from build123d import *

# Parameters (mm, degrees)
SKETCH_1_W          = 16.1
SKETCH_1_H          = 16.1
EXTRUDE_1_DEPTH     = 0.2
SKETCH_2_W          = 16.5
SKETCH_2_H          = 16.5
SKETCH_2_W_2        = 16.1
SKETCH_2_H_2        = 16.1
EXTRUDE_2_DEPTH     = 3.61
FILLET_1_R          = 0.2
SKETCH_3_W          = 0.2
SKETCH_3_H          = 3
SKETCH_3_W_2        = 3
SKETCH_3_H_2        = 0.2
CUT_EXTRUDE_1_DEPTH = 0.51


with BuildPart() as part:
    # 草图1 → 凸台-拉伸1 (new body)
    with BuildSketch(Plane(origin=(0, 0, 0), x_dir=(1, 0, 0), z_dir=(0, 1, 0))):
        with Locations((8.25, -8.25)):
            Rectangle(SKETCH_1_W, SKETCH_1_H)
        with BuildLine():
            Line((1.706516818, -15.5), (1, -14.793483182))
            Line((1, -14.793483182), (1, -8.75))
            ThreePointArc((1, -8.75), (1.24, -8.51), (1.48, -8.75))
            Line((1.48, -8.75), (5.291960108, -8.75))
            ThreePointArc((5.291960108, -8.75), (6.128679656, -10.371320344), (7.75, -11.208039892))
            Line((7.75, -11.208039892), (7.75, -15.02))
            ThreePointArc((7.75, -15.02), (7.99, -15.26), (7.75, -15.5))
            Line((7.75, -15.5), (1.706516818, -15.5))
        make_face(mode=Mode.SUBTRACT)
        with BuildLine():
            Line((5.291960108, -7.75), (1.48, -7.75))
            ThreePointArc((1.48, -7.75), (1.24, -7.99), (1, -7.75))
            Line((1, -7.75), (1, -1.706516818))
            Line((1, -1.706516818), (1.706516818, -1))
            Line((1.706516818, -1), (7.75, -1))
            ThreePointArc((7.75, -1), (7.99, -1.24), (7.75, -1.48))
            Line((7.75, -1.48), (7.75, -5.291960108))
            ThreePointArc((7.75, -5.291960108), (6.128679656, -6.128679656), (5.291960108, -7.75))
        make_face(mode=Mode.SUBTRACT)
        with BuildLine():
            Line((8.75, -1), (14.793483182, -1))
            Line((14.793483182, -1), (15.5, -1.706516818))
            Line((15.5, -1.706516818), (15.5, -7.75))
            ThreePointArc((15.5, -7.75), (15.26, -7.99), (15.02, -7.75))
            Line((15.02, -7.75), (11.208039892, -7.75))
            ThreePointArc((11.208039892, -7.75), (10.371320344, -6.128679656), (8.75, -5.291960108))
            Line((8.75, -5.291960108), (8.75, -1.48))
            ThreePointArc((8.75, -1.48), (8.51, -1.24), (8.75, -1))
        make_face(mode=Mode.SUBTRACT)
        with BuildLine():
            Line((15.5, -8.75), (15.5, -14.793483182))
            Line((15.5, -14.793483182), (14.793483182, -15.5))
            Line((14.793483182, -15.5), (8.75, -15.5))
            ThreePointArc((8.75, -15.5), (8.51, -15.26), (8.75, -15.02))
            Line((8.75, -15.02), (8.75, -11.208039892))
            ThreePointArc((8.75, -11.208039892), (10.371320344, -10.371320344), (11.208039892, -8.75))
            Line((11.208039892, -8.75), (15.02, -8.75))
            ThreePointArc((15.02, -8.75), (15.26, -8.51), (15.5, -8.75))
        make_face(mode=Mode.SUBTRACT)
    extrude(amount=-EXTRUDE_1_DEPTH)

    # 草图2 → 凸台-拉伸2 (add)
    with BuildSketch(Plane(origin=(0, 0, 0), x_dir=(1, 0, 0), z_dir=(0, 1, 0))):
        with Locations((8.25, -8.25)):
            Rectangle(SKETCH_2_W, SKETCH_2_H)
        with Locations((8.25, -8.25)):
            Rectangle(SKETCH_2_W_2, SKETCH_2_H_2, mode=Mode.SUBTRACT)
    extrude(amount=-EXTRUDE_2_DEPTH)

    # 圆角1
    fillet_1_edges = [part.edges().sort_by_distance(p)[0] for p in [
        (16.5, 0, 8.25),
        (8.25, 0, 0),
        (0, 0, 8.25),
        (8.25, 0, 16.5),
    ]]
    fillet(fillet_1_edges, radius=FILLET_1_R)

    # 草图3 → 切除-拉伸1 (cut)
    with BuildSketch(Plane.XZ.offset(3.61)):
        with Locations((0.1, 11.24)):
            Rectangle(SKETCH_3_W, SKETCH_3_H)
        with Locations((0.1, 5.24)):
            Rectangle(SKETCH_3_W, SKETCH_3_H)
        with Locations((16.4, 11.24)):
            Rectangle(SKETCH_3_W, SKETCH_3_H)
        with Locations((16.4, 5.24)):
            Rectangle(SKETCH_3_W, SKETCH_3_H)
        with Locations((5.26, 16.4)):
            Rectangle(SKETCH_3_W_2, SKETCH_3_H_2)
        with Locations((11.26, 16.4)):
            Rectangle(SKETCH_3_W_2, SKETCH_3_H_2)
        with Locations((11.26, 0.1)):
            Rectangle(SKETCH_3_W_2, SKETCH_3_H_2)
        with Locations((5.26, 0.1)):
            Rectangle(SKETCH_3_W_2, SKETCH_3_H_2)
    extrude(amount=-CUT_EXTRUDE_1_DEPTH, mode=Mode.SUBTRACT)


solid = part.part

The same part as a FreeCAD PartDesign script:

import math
import FreeCAD as App
import Part
import Sketcher
from FreeCAD import Vector


def edges_at(feature, points):
    """Names of the edges that pass closest to the given points."""
    edges = feature.Shape.Edges
    near = lambda p: min(range(len(edges)), key=lambda i: edges[i].distToShape(Part.Vertex(*p))[0])
    return sorted({f"Edge{near(p) + 1}" for p in points})


def add_polygon(sketch, points):
    """Adds a closed chain of lines whose ends are joined by coincident constraints."""
    first, n = sketch.GeometryCount, len(points)
    for a, b in zip(points, points[1:] + points[:1]):
        sketch.addGeometry(Part.LineSegment(App.Vector(*a, 0), App.Vector(*b, 0)), False)
    for i in range(n):
        sketch.addConstraint(Sketcher.Constraint("Coincident", first + i, 2, first + (i + 1) % n, 1))

doc = App.newDocument("Part")
body = doc.addObject("PartDesign::Body", "Body")

sketch1 = body.newObject("Sketcher::SketchObject", "Sketch")
sketch1.AttachmentSupport = (doc.getObject("XZ_Plane"), [""])
sketch1.MapMode = "FlatFace"
add_polygon(sketch1, [(0.2, 0.2), (0.2, 16.3), (16.3, 16.3), (16.3, 0.2)])
sketch1.addGeometry(Part.LineSegment(Vector(7.75, 15.5, 0), Vector(1.71, 15.5, 0)), False)
sketch1.addGeometry(Part.LineSegment(Vector(1.71, 15.5, 0), Vector(1, 14.79, 0)), False)
sketch1.addGeometry(Part.LineSegment(Vector(1, 14.79, 0), Vector(1, 8.75, 0)), False)
sketch1.addGeometry(Part.ArcOfCircle(Part.Circle(Vector(1.24, 8.75, 0), Vector(0, 0, 1), 0.24), math.radians(180), math.radians(360)), False)
sketch1.addGeometry(Part.LineSegment(Vector(1.48, 8.75, 0), Vector(5.29, 8.75, 0)), False)
sketch1.addGeometry(Part.ArcOfCircle(Part.Circle(Vector(8.25, 8.25, 0), Vector(0, 0, 1), 3), math.radians(100), math.radians(170)), False)
sketch1.addGeometry(Part.LineSegment(Vector(7.75, 11.21, 0), Vector(7.75, 15.02, 0)), False)
sketch1.addGeometry(Part.ArcOfCircle(Part.Circle(Vector(7.75, 15.26, 0), Vector(0, 0, 1), 0.24), math.radians(-90), math.radians(90)), False)
sketch1.addGeometry(Part.ArcOfCircle(Part.Circle(Vector(15.26, 8.75, 0), Vector(0, 0, 1), 0.24), math.radians(180), math.radians(360)), False)
sketch1.addGeometry(Part.LineSegment(Vector(15.5, 8.75, 0), Vector(15.5, 14.79, 0)), False)
sketch1.addGeometry(Part.LineSegment(Vector(15.5, 14.79, 0), Vector(14.79, 15.5, 0)), False)
sketch1.addGeometry(Part.LineSegment(Vector(14.79, 15.5, 0), Vector(8.75, 15.5, 0)), False)
sketch1.addGeometry(Part.ArcOfCircle(Part.Circle(Vector(8.75, 15.26, 0), Vector(0, 0, 1), 0.24), math.radians(90), math.radians(270)), False)
sketch1.addGeometry(Part.LineSegment(Vector(8.75, 15.02, 0), Vector(8.75, 11.21, 0)), False)
sketch1.addGeometry(Part.ArcOfCircle(Part.Circle(Vector(8.25, 8.25, 0), Vector(0, 0, 1), 3), math.radians(10), math.radians(80)), False)
sketch1.addGeometry(Part.LineSegment(Vector(11.21, 8.75, 0), Vector(15.02, 8.75, 0)), False)
sketch1.addGeometry(Part.ArcOfCircle(Part.Circle(Vector(8.25, 8.25, 0), Vector(0, 0, 1), 3), math.radians(-170), math.radians(-100)), False)
sketch1.addGeometry(Part.LineSegment(Vector(5.29, 7.75, 0), Vector(1.48, 7.75, 0)), False)
sketch1.addGeometry(Part.ArcOfCircle(Part.Circle(Vector(1.24, 7.75, 0), Vector(0, 0, 1), 0.24), math.radians(0), math.radians(180)), False)
sketch1.addGeometry(Part.LineSegment(Vector(1, 7.75, 0), Vector(1, 1.71, 0)), False)
sketch1.addGeometry(Part.LineSegment(Vector(1, 1.71, 0), Vector(1.71, 1, 0)), False)
sketch1.addGeometry(Part.LineSegment(Vector(1.71, 1, 0), Vector(7.75, 1, 0)), False)
sketch1.addGeometry(Part.ArcOfCircle(Part.Circle(Vector(7.75, 1.24, 0), Vector(0, 0, 1), 0.24), math.radians(-90), math.radians(90)), False)
sketch1.addGeometry(Part.LineSegment(Vector(7.75, 1.48, 0), Vector(7.75, 5.29, 0)), False)
sketch1.addGeometry(Part.ArcOfCircle(Part.Circle(Vector(8.75, 1.24, 0), Vector(0, 0, 1), 0.24), math.radians(90), math.radians(270)), False)
sketch1.addGeometry(Part.LineSegment(Vector(8.75, 1, 0), Vector(14.79, 1, 0)), False)
sketch1.addGeometry(Part.LineSegment(Vector(14.79, 1, 0), Vector(15.5, 1.71, 0)), False)
sketch1.addGeometry(Part.LineSegment(Vector(15.5, 1.71, 0), Vector(15.5, 7.75, 0)), False)
sketch1.addGeometry(Part.ArcOfCircle(Part.Circle(Vector(15.26, 7.75, 0), Vector(0, 0, 1), 0.24), math.radians(0), math.radians(180)), False)
sketch1.addGeometry(Part.LineSegment(Vector(15.02, 7.75, 0), Vector(11.21, 7.75, 0)), False)
sketch1.addGeometry(Part.ArcOfCircle(Part.Circle(Vector(8.25, 8.25, 0), Vector(0, 0, 1), 3), math.radians(-80), math.radians(-10)), False)
sketch1.addGeometry(Part.LineSegment(Vector(8.75, 5.29, 0), Vector(8.75, 1.48, 0)), False)
sketch1.addConstraint(Sketcher.Constraint("Coincident", 4, 2, 5, 1))
sketch1.addConstraint(Sketcher.Constraint("Coincident", 5, 2, 6, 1))
sketch1.addConstraint(Sketcher.Constraint("Tangent", 6, 2, 7, 1))
sketch1.addConstraint(Sketcher.Constraint("Coincident", 7, 2, 8, 1))
sketch1.addConstraint(Sketcher.Constraint("Coincident", 8, 2, 9, 2))
sketch1.addConstraint(Sketcher.Constraint("Coincident", 9, 1, 10, 1))
sketch1.addConstraint(Sketcher.Constraint("Coincident", 10, 2, 11, 1))
sketch1.addConstraint(Sketcher.Constraint("Tangent", 11, 2, 4, 1))
sketch1.addConstraint(Sketcher.Constraint("Tangent", 12, 2, 13, 1))
sketch1.addConstraint(Sketcher.Constraint("Coincident", 13, 2, 14, 1))
sketch1.addConstraint(Sketcher.Constraint("Coincident", 14, 2, 15, 1))
sketch1.addConstraint(Sketcher.Constraint("Tangent", 15, 2, 16, 1))
sketch1.addConstraint(Sketcher.Constraint("Coincident", 16, 2, 17, 1))
sketch1.addConstraint(Sketcher.Constraint("Coincident", 17, 2, 18, 2))
sketch1.addConstraint(Sketcher.Constraint("Coincident", 18, 1, 19, 1))
sketch1.addConstraint(Sketcher.Constraint("Coincident", 19, 2, 12, 1))
sketch1.addConstraint(Sketcher.Constraint("Coincident", 20, 1, 21, 1))
sketch1.addConstraint(Sketcher.Constraint("Coincident", 21, 2, 22, 1))
sketch1.addConstraint(Sketcher.Constraint("Tangent", 22, 2, 23, 1))
sketch1.addConstraint(Sketcher.Constraint("Coincident", 23, 2, 24, 1))
sketch1.addConstraint(Sketcher.Constraint("Coincident", 24, 2, 25, 1))
sketch1.addConstraint(Sketcher.Constraint("Tangent", 25, 2, 26, 1))
sketch1.addConstraint(Sketcher.Constraint("Coincident", 26, 2, 27, 1))
sketch1.addConstraint(Sketcher.Constraint("Coincident", 27, 2, 20, 2))
sketch1.addConstraint(Sketcher.Constraint("Tangent", 28, 2, 29, 1))
sketch1.addConstraint(Sketcher.Constraint("Coincident", 29, 2, 30, 1))
sketch1.addConstraint(Sketcher.Constraint("Coincident", 30, 2, 31, 1))
sketch1.addConstraint(Sketcher.Constraint("Tangent", 31, 2, 32, 1))
sketch1.addConstraint(Sketcher.Constraint("Coincident", 32, 2, 33, 1))
sketch1.addConstraint(Sketcher.Constraint("Coincident", 33, 2, 34, 2))
sketch1.addConstraint(Sketcher.Constraint("Coincident", 34, 1, 35, 1))
sketch1.addConstraint(Sketcher.Constraint("Coincident", 35, 2, 28, 1))
sketch1.addConstraint(Sketcher.Constraint("Vertical", 0))
sketch1.addConstraint(Sketcher.Constraint("Horizontal", 1))
sketch1.addConstraint(Sketcher.Constraint("Vertical", 2))
sketch1.addConstraint(Sketcher.Constraint("Horizontal", 3))
sketch1.addConstraint(Sketcher.Constraint("Horizontal", 4))
sketch1.addConstraint(Sketcher.Constraint("Vertical", 6))
sketch1.addConstraint(Sketcher.Constraint("Horizontal", 8))
sketch1.addConstraint(Sketcher.Constraint("Vertical", 10))
sketch1.addConstraint(Sketcher.Constraint("Vertical", 13))
sketch1.addConstraint(Sketcher.Constraint("Horizontal", 15))
sketch1.addConstraint(Sketcher.Constraint("Vertical", 17))
sketch1.addConstraint(Sketcher.Constraint("Horizontal", 19))
sketch1.addConstraint(Sketcher.Constraint("Horizontal", 21))
sketch1.addConstraint(Sketcher.Constraint("Vertical", 23))
sketch1.addConstraint(Sketcher.Constraint("Horizontal", 25))
sketch1.addConstraint(Sketcher.Constraint("Vertical", 27))
sketch1.addConstraint(Sketcher.Constraint("Horizontal", 29))
sketch1.addConstraint(Sketcher.Constraint("Vertical", 31))
sketch1.addConstraint(Sketcher.Constraint("Horizontal", 33))
sketch1.addConstraint(Sketcher.Constraint("Vertical", 35))
sketch1.addConstraint(Sketcher.Constraint("Coincident", 18, 3, 9, 3))
sketch1.addConstraint(Sketcher.Constraint("Coincident", 20, 3, 9, 3))
sketch1.addConstraint(Sketcher.Constraint("Coincident", 34, 3, 9, 3))
sketch1.addConstraint(Sketcher.Constraint("Equal", 7, 11))
sketch1.addConstraint(Sketcher.Constraint("Equal", 11, 12))
sketch1.addConstraint(Sketcher.Constraint("Equal", 12, 16))
sketch1.addConstraint(Sketcher.Constraint("Equal", 9, 18))
sketch1.addConstraint(Sketcher.Constraint("Equal", 18, 20))
sketch1.addConstraint(Sketcher.Constraint("Equal", 16, 22))
sketch1.addConstraint(Sketcher.Constraint("Equal", 22, 26))
sketch1.addConstraint(Sketcher.Constraint("Equal", 26, 28))
sketch1.addConstraint(Sketcher.Constraint("Equal", 28, 32))
sketch1.addConstraint(Sketcher.Constraint("Equal", 20, 34))
sketch1.addConstraint(Sketcher.Constraint("Perpendicular", 5, 14))
sketch1.addConstraint(Sketcher.Constraint("Parallel", 14, 24))
sketch1.addConstraint(Sketcher.Constraint("Perpendicular", 24, 30))
sketch1.addConstraint(Sketcher.Constraint("Horizontal", 7, 3, 12, 3))
sketch1.addConstraint(Sketcher.Constraint("Horizontal", 11, 3, 16, 3))
sketch1.addConstraint(Sketcher.Constraint("Horizontal", 26, 3, 28, 3))
sketch1.addConstraint(Sketcher.Constraint("Horizontal", 22, 3, 32, 3))
sketch1.addConstraint(Sketcher.Constraint("Horizontal", 6, 2, 7, 2))
sketch1.addConstraint(Sketcher.Constraint("Horizontal", 5, 2, 13, 2))
sketch1.addConstraint(Sketcher.Constraint("Horizontal", 9, 1, 17, 2))
sketch1.addConstraint(Sketcher.Constraint("Horizontal", 12, 2, 18, 1))
sketch1.addConstraint(Sketcher.Constraint("Horizontal", 32, 3, 20, 1))
sketch1.addConstraint(Sketcher.Constraint("Horizontal", 23, 2, 30, 2))
sketch1.addConstraint(Sketcher.Constraint("Horizontal", 31, 2, 32, 2))
sketch1.addConstraint(Sketcher.Constraint("Horizontal", 27, 2, 34, 1))
sketch1.addConstraint(Sketcher.Constraint("Vertical", 7, 3, 22, 3))
sketch1.addConstraint(Sketcher.Constraint("Vertical", 11, 3, 26, 3))
sketch1.addConstraint(Sketcher.Constraint("Vertical", 16, 3, 28, 3))
sketch1.addConstraint(Sketcher.Constraint("Vertical", 12, 3, 32, 3))
sketch1.addConstraint(Sketcher.Constraint("Vertical", 26, 3, 9, 1))
sketch1.addConstraint(Sketcher.Constraint("Vertical", 15, 2, 16, 2))
sketch1.addConstraint(Sketcher.Constraint("Vertical", 8, 2, 20, 1))
sketch1.addConstraint(Sketcher.Constraint("Vertical", 4, 2, 24, 2))
sketch1.addConstraint(Sketcher.Constraint("Vertical", 25, 2, 26, 2))
sketch1.addConstraint(Sketcher.Constraint("Vertical", 14, 2, 29, 2))
sketch1.addConstraint(Sketcher.Constraint("Equal", 4, 15))
sketch1.addConstraint(Sketcher.Constraint("Equal", 3, 0))
sketch1.addConstraint(Sketcher.Constraint("Equal", 29, 6))
sketch1.addConstraint(Sketcher.Constraint("Equal", 33, 10))
sketch1.addConstraint(Sketcher.Constraint("Equal", 13, 23))
sketch1.addConstraint(Sketcher.Constraint("Radius", 9, 3.0))
sketch1.addConstraint(Sketcher.Constraint("Radius", 7, 0.24))
sketch1.addConstraint(Sketcher.Constraint("DistanceX", 1, 1, 1, 2, 16.1))
sketch1.addConstraint(Sketcher.Constraint("DistanceX", -1, 1, 5, 2, 1.0))
sketch1.addConstraint(Sketcher.Constraint("DistanceY", -1, 1, 24, 2, 1.0))
sketch1.addConstraint(Sketcher.Constraint("DistanceX", 11, 3, 16, 3, 1.0))
sketch1.addConstraint(Sketcher.Constraint("DistanceX", -1, 1, 0, 2, 0.2))
sketch1.addConstraint(Sketcher.Constraint("DistanceY", -1, 1, 0, 2, 16.3))
sketch1.addConstraint(Sketcher.Constraint("DistanceY", -1, 1, 4, 2, 15.5))
sketch1.addConstraint(Sketcher.Constraint("DistanceX", 4, 2, 4, 1, 6.043483))
pad1 = body.newObject("PartDesign::Pad", "Pad")
pad1.Profile = sketch1
pad1.Length = 0.2

sketch2 = body.newObject("Sketcher::SketchObject", "Sketch001")
sketch2.AttachmentSupport = (doc.getObject("XZ_Plane"), [""])
sketch2.MapMode = "FlatFace"
add_polygon(sketch2, [(0, 0), (0, 16), (16, 16), (16, 0)])
add_polygon(sketch2, [(16, 16), (0, 16), (0, 0), (16, 0)])
sketch2.addConstraint(Sketcher.Constraint("Vertical", 0))
sketch2.addConstraint(Sketcher.Constraint("Horizontal", 1))
sketch2.addConstraint(Sketcher.Constraint("Vertical", 2))
sketch2.addConstraint(Sketcher.Constraint("Horizontal", 3))
sketch2.addConstraint(Sketcher.Constraint("Horizontal", 4))
sketch2.addConstraint(Sketcher.Constraint("Vertical", 5))
sketch2.addConstraint(Sketcher.Constraint("Horizontal", 6))
sketch2.addConstraint(Sketcher.Constraint("Vertical", 7))
sketch2.addConstraint(Sketcher.Constraint("Coincident", 3, 2, -1, 1))
sketch2.addConstraint(Sketcher.Constraint("Equal", 3, 0))
sketch2.addConstraint(Sketcher.Constraint("Equal", 6, 5))
sketch2.addConstraint(Sketcher.Constraint("DistanceX", 1, 1, 1, 2, 16.5))
sketch2.addConstraint(Sketcher.Constraint("DistanceX", 4, 2, 4, 1, 16.1))
sketch2.addConstraint(Sketcher.Constraint("DistanceX", -1, 1, 4, 2, 0.2))
sketch2.addConstraint(Sketcher.Constraint("DistanceY", -1, 1, 4, 2, 16.3))
pad2 = body.newObject("PartDesign::Pad", "Pad001")
pad2.Profile = sketch2
pad2.Length = 3.61
doc.recompute()

fillet = body.newObject("PartDesign::Fillet", "Fillet")
fillet.Base = (pad2, edges_at(pad2, [
    (16.5, 0, 8.25),
    (8.25, 0, 0),
    (0, 0, 8.25),
    (8.25, 0, 16.5),
]))
fillet.Radius = 0.2

sketch3 = body.newObject("Sketcher::SketchObject", "Sketch002")
sketch3.AttachmentSupport = (doc.getObject("XZ_Plane"), [""])
sketch3.MapMode = "FlatFace"
sketch3.AttachmentOffset = App.Placement(Vector(0, 0, 3.61), App.Rotation())
add_polygon(sketch3, [(0, 12.74), (0, 9.74), (0.2, 9.74), (0.2, 12.74)])
add_polygon(sketch3, [(0, 6.74), (0, 3.74), (0.2, 3.74), (0.2, 6.74)])
add_polygon(sketch3, [(16.3, 12.74), (16.3, 9.74), (16.5, 9.74), (16.5, 12.74)])
add_polygon(sketch3, [(16.3, 6.74), (16.3, 3.74), (16.5, 3.74), (16.5, 6.74)])
add_polygon(sketch3, [(3.76, 16.5), (3.76, 16.3), (6.76, 16.3), (6.76, 16.5)])
add_polygon(sketch3, [(9.76, 16.5), (9.76, 16.3), (12.76, 16.3), (12.76, 16.5)])
add_polygon(sketch3, [(9.76, 0.2), (9.76, 0), (12.76, 0), (12.76, 0.2)])
add_polygon(sketch3, [(3.76, 0.2), (3.76, 0), (6.76, 0), (6.76, 0.2)])
sketch3.addConstraint(Sketcher.Constraint("Vertical", 0))
sketch3.addConstraint(Sketcher.Constraint("Horizontal", 1))
sketch3.addConstraint(Sketcher.Constraint("Vertical", 2))
sketch3.addConstraint(Sketcher.Constraint("Horizontal", 3))
sketch3.addConstraint(Sketcher.Constraint("Vertical", 4))
sketch3.addConstraint(Sketcher.Constraint("Horizontal", 5))
sketch3.addConstraint(Sketcher.Constraint("Vertical", 6))
sketch3.addConstraint(Sketcher.Constraint("Horizontal", 7))
sketch3.addConstraint(Sketcher.Constraint("Vertical", 8))
sketch3.addConstraint(Sketcher.Constraint("Horizontal", 9))
sketch3.addConstraint(Sketcher.Constraint("Vertical", 10))
sketch3.addConstraint(Sketcher.Constraint("Horizontal", 11))
sketch3.addConstraint(Sketcher.Constraint("Vertical", 12))
sketch3.addConstraint(Sketcher.Constraint("Horizontal", 13))
sketch3.addConstraint(Sketcher.Constraint("Vertical", 14))
sketch3.addConstraint(Sketcher.Constraint("Horizontal", 15))
sketch3.addConstraint(Sketcher.Constraint("Vertical", 16))
sketch3.addConstraint(Sketcher.Constraint("Horizontal", 17))
sketch3.addConstraint(Sketcher.Constraint("Vertical", 18))
sketch3.addConstraint(Sketcher.Constraint("Horizontal", 19))
sketch3.addConstraint(Sketcher.Constraint("Vertical", 20))
sketch3.addConstraint(Sketcher.Constraint("Horizontal", 21))
sketch3.addConstraint(Sketcher.Constraint("Vertical", 22))
sketch3.addConstraint(Sketcher.Constraint("Horizontal", 23))
sketch3.addConstraint(Sketcher.Constraint("Vertical", 24))
sketch3.addConstraint(Sketcher.Constraint("Horizontal", 25))
sketch3.addConstraint(Sketcher.Constraint("Vertical", 26))
sketch3.addConstraint(Sketcher.Constraint("Horizontal", 27))
sketch3.addConstraint(Sketcher.Constraint("Vertical", 28))
sketch3.addConstraint(Sketcher.Constraint("Horizontal", 29))
sketch3.addConstraint(Sketcher.Constraint("Vertical", 30))
sketch3.addConstraint(Sketcher.Constraint("Horizontal", 31))
sketch3.addConstraint(Sketcher.Constraint("PointOnObject", 0, 2, -2))
sketch3.addConstraint(Sketcher.Constraint("PointOnObject", 4, 2, -2))
sketch3.addConstraint(Sketcher.Constraint("PointOnObject", 24, 2, -1))
sketch3.addConstraint(Sketcher.Constraint("PointOnObject", 28, 2, -1))
sketch3.addConstraint(Sketcher.Constraint("Horizontal", 1, 2, 8, 2))
sketch3.addConstraint(Sketcher.Constraint("Horizontal", 3, 2, 10, 2))
sketch3.addConstraint(Sketcher.Constraint("Horizontal", 5, 2, 12, 2))
sketch3.addConstraint(Sketcher.Constraint("Horizontal", 7, 2, 14, 2))
sketch3.addConstraint(Sketcher.Constraint("Horizontal", 17, 2, 20, 2))
sketch3.addConstraint(Sketcher.Constraint("Horizontal", 19, 2, 22, 2))
sketch3.addConstraint(Sketcher.Constraint("Horizontal", 27, 2, 30, 2))
sketch3.addConstraint(Sketcher.Constraint("Vertical", 2, 2, 5, 2))
sketch3.addConstraint(Sketcher.Constraint("Vertical", 11, 2, 12, 2))
sketch3.addConstraint(Sketcher.Constraint("Vertical", 10, 2, 13, 2))
sketch3.addConstraint(Sketcher.Constraint("Vertical", 23, 2, 24, 2))
sketch3.addConstraint(Sketcher.Constraint("Vertical", 22, 2, 25, 2))
sketch3.addConstraint(Sketcher.Constraint("Vertical", 19, 2, 28, 2))
sketch3.addConstraint(Sketcher.Constraint("Vertical", 18, 2, 29, 2))
sketch3.addConstraint(Sketcher.Constraint("Equal", 7, 9))
sketch3.addConstraint(Sketcher.Constraint("Equal", 19, 21))
sketch3.addConstraint(Sketcher.Constraint("Equal", 31, 0))
sketch3.addConstraint(Sketcher.Constraint("Equal", 2, 4))
sketch3.addConstraint(Sketcher.Constraint("Equal", 15, 16))
sketch3.addConstraint(Sketcher.Constraint("Equal", 22, 24))
sketch3.addConstraint(Sketcher.Constraint("DistanceX", 17, 1, 17, 2, 3.0))
sketch3.addConstraint(Sketcher.Constraint("DistanceX", 1, 1, 1, 2, 0.2))
sketch3.addConstraint(Sketcher.Constraint("DistanceY", 4, 2, 0, 2, 6.0))
sketch3.addConstraint(Sketcher.Constraint("DistanceX", 17, 2, 20, 2, 3.0))
sketch3.addConstraint(Sketcher.Constraint("DistanceX", -1, 1, 8, 2, 16.3))
sketch3.addConstraint(Sketcher.Constraint("DistanceY", -1, 1, 16, 2, 16.3))
sketch3.addConstraint(Sketcher.Constraint("DistanceY", -1, 1, 0, 2, 9.74))
sketch3.addConstraint(Sketcher.Constraint("DistanceX", -1, 1, 16, 2, 3.76))
pocket1 = body.newObject("PartDesign::Pocket", "Pocket")
pocket1.Profile = sketch3
pocket1.Length = 0.51

doc.recompute()
